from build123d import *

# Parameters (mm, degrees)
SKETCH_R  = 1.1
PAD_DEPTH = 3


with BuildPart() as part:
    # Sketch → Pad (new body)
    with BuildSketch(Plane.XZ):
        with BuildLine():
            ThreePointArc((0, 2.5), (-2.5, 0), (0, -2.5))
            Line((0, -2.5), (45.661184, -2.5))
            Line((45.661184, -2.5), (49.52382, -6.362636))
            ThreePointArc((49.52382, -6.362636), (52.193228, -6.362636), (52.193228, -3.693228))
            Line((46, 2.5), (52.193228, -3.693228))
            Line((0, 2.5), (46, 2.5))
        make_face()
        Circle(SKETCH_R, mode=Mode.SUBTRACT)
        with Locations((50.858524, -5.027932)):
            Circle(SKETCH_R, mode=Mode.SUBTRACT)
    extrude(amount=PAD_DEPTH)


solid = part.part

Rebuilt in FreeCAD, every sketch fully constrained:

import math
import FreeCAD as App
import Part
import Sketcher
from FreeCAD import Vector
Q = App.Units.Quantity

doc = App.newDocument("Part")
body = doc.addObject("PartDesign::Body", "Body")

# Sketch on XZ plane
sketch1 = doc.addObject("Sketcher::SketchObject", "Sketch")
body.addObject(sketch1)
sketch1.AttachmentSupport = (doc.XZ_Plane, [""])
sketch1.MapMode = "FlatFace"
sketch1.addGeometry([
    Part.ArcOfCircle(Part.Circle(Vector(0, 0, 0), Vector(0, 0, 1), 2.5), math.radians(90), math.radians(270)),  # 0
    Part.LineSegment(Vector(0, -2.5, 0), Vector(45.7, -2.5, 0)),  # 1
    Part.LineSegment(Vector(45.7, -2.5, 0), Vector(49.5, -6.4, 0)),  # 2
    Part.ArcOfCircle(Part.Circle(Vector(50.9, -5, 0), Vector(0, 0, 1), 1.9), math.radians(-135), math.radians(45)),  # 3
    Part.LineSegment(Vector(52.2, -3.7, 0), Vector(46, 2.5, 0)),  # 4
    Part.LineSegment(Vector(46, 2.5, 0), Vector(0, 2.5, 0)),  # 5
    Part.Circle(Vector(50.9, -5, 0), Vector(0, 0, 1), 1.1),  # 6
    Part.Circle(Vector(0, 0, 0), Vector(0, 0, 1), 1.1),  # 7
], False)
sketch1.addConstraint([
    Sketcher.Constraint("Tangent", 0, 2, 1, 1),
    Sketcher.Constraint("Coincident", 1, 2, 2, 1),
    Sketcher.Constraint("Tangent", 2, 2, 3, 1),
    Sketcher.Constraint("Tangent", 3, 2, 4, 1),
    Sketcher.Constraint("Coincident", 4, 2, 5, 1),
    Sketcher.Constraint("Tangent", 5, 2, 0, 1),
    Sketcher.Constraint("Horizontal", 1),
    Sketcher.Constraint("Horizontal", 5),
    Sketcher.Constraint("Coincident", 0, 3, -1, 1),
    Sketcher.Constraint("Coincident", 7, 3, -1, 1),
    Sketcher.Constraint("Coincident", 6, 3, 3, 3),
    Sketcher.Constraint("Equal", 6, 7),
    Sketcher.Constraint("Parallel", 2, 4),
    Sketcher.Constraint("Diameter", 6, Q("2.2 mm")),
    Sketcher.Constraint("Radius", 0, Q("2.5 mm")),
    Sketcher.Constraint("DistanceX", 5, 2, 5, 1, Q("46 mm")),
    Sketcher.Constraint("Angle", 2, Q("-45 deg")),
    Sketcher.Constraint("Radius", 3, Q("1.887556 mm")),
    Sketcher.Constraint("DistanceX", -1, 1, 2, 2, Q("49.52382 mm")),
])
pad1 = doc.addObject("PartDesign::Pad", "Pad")
body.addObject(pad1)
pad1.Profile = sketch1
pad1.Length = 3

doc.recompute()
